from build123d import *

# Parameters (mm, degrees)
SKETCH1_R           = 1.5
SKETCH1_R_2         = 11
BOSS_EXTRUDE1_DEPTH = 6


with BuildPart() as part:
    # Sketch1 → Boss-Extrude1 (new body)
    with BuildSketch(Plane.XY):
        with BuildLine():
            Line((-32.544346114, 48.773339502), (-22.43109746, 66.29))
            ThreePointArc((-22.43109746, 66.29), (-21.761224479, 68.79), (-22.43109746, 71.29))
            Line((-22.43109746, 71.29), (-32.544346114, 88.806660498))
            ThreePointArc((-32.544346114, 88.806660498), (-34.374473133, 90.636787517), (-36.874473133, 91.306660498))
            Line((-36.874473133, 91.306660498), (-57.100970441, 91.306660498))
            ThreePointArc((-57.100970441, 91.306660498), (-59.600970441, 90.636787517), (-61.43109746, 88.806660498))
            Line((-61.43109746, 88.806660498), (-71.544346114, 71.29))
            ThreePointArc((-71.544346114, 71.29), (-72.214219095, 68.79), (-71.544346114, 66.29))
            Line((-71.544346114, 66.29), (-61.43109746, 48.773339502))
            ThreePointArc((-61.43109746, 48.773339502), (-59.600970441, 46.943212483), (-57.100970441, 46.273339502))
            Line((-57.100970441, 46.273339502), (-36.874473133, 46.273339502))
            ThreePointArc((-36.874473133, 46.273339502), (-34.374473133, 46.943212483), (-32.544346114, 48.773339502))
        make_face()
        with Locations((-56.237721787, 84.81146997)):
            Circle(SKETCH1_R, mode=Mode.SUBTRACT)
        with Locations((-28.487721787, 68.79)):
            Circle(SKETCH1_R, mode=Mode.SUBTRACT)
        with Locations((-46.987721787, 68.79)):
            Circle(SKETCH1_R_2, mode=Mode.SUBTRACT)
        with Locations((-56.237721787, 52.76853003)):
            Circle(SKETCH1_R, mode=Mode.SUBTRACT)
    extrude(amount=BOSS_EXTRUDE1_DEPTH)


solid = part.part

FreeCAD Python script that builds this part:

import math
import FreeCAD as App
import Part
import Sketcher

V = App.Vector
Q = App.Units.Quantity

doc = App.newDocument("Part")
body = doc.addObject("PartDesign::Body", "Body")

sketch1 = body.newObject("Sketcher::SketchObject", "Sketch")
sketch1.AttachmentSupport = (doc.getObject("XY_Plane"), [""])
sketch1.MapMode = "FlatFace"
sketch1.addGeometry([
    Part.LineSegment(V(-32.5, 48.8, 0), V(-22.4, 66.3, 0)),
    Part.ArcOfCircle(Part.Circle(V(-26.8, 68.8, 0), V(0, 0, 1), 5), math.radians(-30), math.radians(30)),
    Part.LineSegment(V(-22.4, 71.3, 0), V(-32.5, 88.8, 0)),
    Part.ArcOfCircle(Part.Circle(V(-36.9, 86.3, 0), V(0, 0, 1), 5), math.radians(30), math.radians(90)),
    Part.LineSegment(V(-36.9, 91.3, 0), V(-57.1, 91.3, 0)),
    Part.ArcOfCircle(Part.Circle(V(-57.1, 86.3, 0), V(0, 0, 1), 5), math.radians(90), math.radians(150)),
    Part.LineSegment(V(-61.4, 88.8, 0), V(-71.5, 71.3, 0)),
    Part.ArcOfCircle(Part.Circle(V(-67.2, 68.8, 0), V(0, 0, 1), 5), math.radians(150), math.radians(210)),
    Part.LineSegment(V(-71.5, 66.3, 0), V(-61.4, 48.8, 0)),
    Part.ArcOfCircle(Part.Circle(V(-57.1, 51.3, 0), V(0, 0, 1), 5), math.radians(-150), math.radians(-90)),
    Part.LineSegment(V(-57.1, 46.3, 0), V(-36.9, 46.3, 0)),
    Part.ArcOfCircle(Part.Circle(V(-36.9, 51.3, 0), V(0, 0, 1), 5), math.radians(-90), math.radians(-30)),
    Part.Circle(V(-56.2, 52.8, 0), V(0, 0, 1), 1.5),
    Part.Circle(V(-47, 68.8, 0), V(0, 0, 1), 11),
    Part.Circle(V(-56.2, 84.8, 0), V(0, 0, 1), 1.5),
    Part.Circle(V(-28.5, 68.8, 0), V(0, 0, 1), 1.5),
], False)
sketch1.addConstraint([
    Sketcher.Constraint("Tangent", 0, 2, 1, 1),
    Sketcher.Constraint("Tangent", 1, 2, 2, 1),
    Sketcher.Constraint("Tangent", 2, 2, 3, 1),
    Sketcher.Constraint("Tangent", 3, 2, 4, 1),
    Sketcher.Constraint("Tangent", 4, 2, 5, 1),
    Sketcher.Constraint("Tangent", 5, 2, 6, 1),
    Sketcher.Constraint("Tangent", 6, 2, 7, 1),
    Sketcher.Constraint("Tangent", 7, 2, 8, 1),
    Sketcher.Constraint("Tangent", 8, 2, 9, 1),
    Sketcher.Constraint("Tangent", 9, 2, 10, 1),
    Sketcher.Constraint("Tangent", 10, 2, 11, 1),
    Sketcher.Constraint("Tangent", 11, 2, 0, 1),
    Sketcher.Constraint("Horizontal", 4),
    Sketcher.Constraint("Horizontal", 10),
    Sketcher.Constraint("Equal", 1, 3),
    Sketcher.Constraint("Equal", 3, 5),
    Sketcher.Constraint("Equal", 5, 7),
    Sketcher.Constraint("Equal", 7, 9),
    Sketcher.Constraint("Equal", 9, 11),
    Sketcher.Constraint("Equal", 12, 14),
    Sketcher.Constraint("Equal", 14, 15),
    Sketcher.Constraint("Parallel", 0, 6),
    Sketcher.Constraint("Parallel", 2, 8),
    Sketcher.Constraint("Horizontal", 1, 3, 7, 3),
    Sketcher.Constraint("Horizontal", 7, 3, 13, 3),
    Sketcher.Constraint("Horizontal", 13, 3, 15, 3),
    Sketcher.Constraint("Horizontal", 2, 2, 5, 2),
    Sketcher.Constraint("Vertical", 5, 3, 9, 3),
    Sketcher.Constraint("Vertical", 12, 3, 14, 3),
    Sketcher.Constraint("Diameter", 12, Q("3 mm")),
    Sketcher.Constraint("Diameter", 13, Q("22 mm")),
    Sketcher.Constraint("Radius", 1, Q("5 mm")),
    Sketcher.Constraint("Angle", 0, Q("60 deg")),
    Sketcher.Constraint("DistanceX", 13, 3, 15, 3, Q("18.5 mm")),
    Sketcher.Constraint("DistanceY", -1, 1, 1, 3, Q("68.79 mm")),
    Sketcher.Constraint("DistanceX", 12, 3, 13, 3, Q("9.25 mm")),
    Sketcher.Constraint("DistanceX", 4, 2, 4, 1, Q("20.226497 mm")),
    Sketcher.Constraint("DistanceY", -1, 1, 3, 3, Q("86.30666 mm")),
    Sketcher.Constraint("DistanceX", 5, 3, -1, 1, Q("57.10097 mm")),
    Sketcher.Constraint("DistanceX", 12, 3, -1, 1, Q("56.237722 mm")),
    Sketcher.Constraint("DistanceY", -1, 1, 12, 3, Q("52.76853 mm")),
    Sketcher.Constraint("DistanceY", -1, 1, 14, 3, Q("84.81147 mm")),
])
pad1 = body.newObject("PartDesign::Pad", "Pad")
pad1.Profile = sketch1
pad1.Length = 6

doc.recompute()
